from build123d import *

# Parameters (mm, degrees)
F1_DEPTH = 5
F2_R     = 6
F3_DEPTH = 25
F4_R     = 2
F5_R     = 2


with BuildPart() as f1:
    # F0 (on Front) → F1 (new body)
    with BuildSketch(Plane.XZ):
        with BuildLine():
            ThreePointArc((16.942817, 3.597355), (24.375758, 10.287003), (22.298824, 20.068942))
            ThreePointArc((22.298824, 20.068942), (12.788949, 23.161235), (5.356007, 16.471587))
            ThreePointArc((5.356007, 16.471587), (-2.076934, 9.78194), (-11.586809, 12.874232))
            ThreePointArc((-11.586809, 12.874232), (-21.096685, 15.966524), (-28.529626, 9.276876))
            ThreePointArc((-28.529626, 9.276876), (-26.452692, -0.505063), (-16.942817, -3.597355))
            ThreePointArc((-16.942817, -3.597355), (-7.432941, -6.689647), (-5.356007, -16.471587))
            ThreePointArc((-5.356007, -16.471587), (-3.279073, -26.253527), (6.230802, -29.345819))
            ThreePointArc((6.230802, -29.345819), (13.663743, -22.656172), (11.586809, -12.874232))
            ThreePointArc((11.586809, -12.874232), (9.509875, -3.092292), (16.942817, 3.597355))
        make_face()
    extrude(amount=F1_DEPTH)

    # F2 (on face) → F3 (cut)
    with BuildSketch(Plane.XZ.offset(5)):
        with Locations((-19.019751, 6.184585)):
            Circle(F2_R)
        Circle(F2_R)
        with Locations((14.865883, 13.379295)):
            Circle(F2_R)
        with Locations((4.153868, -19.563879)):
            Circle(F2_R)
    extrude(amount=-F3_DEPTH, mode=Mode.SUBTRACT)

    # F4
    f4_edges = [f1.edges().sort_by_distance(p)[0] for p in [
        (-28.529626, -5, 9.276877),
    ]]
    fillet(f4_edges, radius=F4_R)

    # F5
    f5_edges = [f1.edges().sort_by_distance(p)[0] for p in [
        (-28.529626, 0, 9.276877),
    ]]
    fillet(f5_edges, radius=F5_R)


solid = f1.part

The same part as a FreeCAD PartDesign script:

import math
import FreeCAD as App
import Part
import Sketcher
from FreeCAD import Vector


def edges_at(feature, points):
    """Names of the edges that pass closest to the given points."""
    edges = feature.Shape.Edges
    near = lambda p: min(range(len(edges)), key=lambda i: edges[i].distToShape(Part.Vertex(*p))[0])
    return sorted({f"Edge{near(p) + 1}" for p in points})

doc = App.newDocument("Part")
body = doc.addObject("PartDesign::Body", "Body")

sketch1 = body.newObject("Sketcher::SketchObject", "Sketch")
sketch1.AttachmentSupport = (doc.getObject("XZ_Plane"), [""])
sketch1.MapMode = "FlatFace"
sketch1.addGeometry(Part.ArcOfCircle(Part.Circle(Vector(14.865882, 13.379295, 0), Vector(0, 0, 1), 10), math.radians(-78.012783), math.radians(41.987212)), False)
sketch1.addGeometry(Part.ArcOfCircle(Part.Circle(Vector(14.865882, 13.379295, 0), Vector(0, 0, 1), 10), math.radians(41.987209), math.radians(161.987217)), False)
sketch1.addGeometry(Part.ArcOfCircle(Part.Circle(Vector(-4.153868, 19.56388, 0), Vector(0, 0, 1), 10), math.radians(-138.012785), math.radians(-18.012788)), False)
sketch1.addGeometry(Part.ArcOfCircle(Part.Circle(Vector(-19.01975, 6.184584, 0), Vector(0, 0, 1), 10), math.radians(41.987215), math.radians(161.987217)), False)
sketch1.addGeometry(Part.ArcOfCircle(Part.Circle(Vector(-19.019751, 6.184584, 0), Vector(0, 0, 1), 9.999999), math.radians(161.987215), math.radians(281.987215)), False)
sketch1.addGeometry(Part.ArcOfCircle(Part.Circle(Vector(-14.865882, -13.379295, 0), Vector(0, 0, 1), 10), math.radians(-18.012788), math.radians(101.987218)), False)
sketch1.addGeometry(Part.ArcOfCircle(Part.Circle(Vector(4.153868, -19.56388, 0), Vector(0, 0, 1), 10), math.radians(161.987212), math.radians(281.987214)), False)
sketch1.addGeometry(Part.ArcOfCircle(Part.Circle(Vector(4.153868, -19.563879, 0), Vector(0, 0, 1), 10), math.radians(-78.012786), math.radians(41.987215)), False)
sketch1.addGeometry(Part.ArcOfCircle(Part.Circle(Vector(19.01975, -6.184585, 0), Vector(0, 0, 1), 10), math.radians(101.987207), math.radians(221.987216)), False)
sketch1.addConstraint(Sketcher.Constraint("Tangent", 0, 2, 1, 1))
sketch1.addConstraint(Sketcher.Constraint("Tangent", 1, 2, 2, 2))
sketch1.addConstraint(Sketcher.Constraint("Tangent", 2, 1, 3, 1))
sketch1.addConstraint(Sketcher.Constraint("Tangent", 3, 2, 4, 1))
sketch1.addConstraint(Sketcher.Constraint("Tangent", 4, 2, 5, 2))
sketch1.addConstraint(Sketcher.Constraint("Tangent", 5, 1, 6, 1))
sketch1.addConstraint(Sketcher.Constraint("Tangent", 6, 2, 7, 1))
sketch1.addConstraint(Sketcher.Constraint("Tangent", 7, 2, 8, 2))
sketch1.addConstraint(Sketcher.Constraint("Tangent", 8, 1, 0, 1))
sketch1.addConstraint(Sketcher.Constraint("Equal", 0, 1))
sketch1.addConstraint(Sketcher.Constraint("Equal", 1, 2))
sketch1.addConstraint(Sketcher.Constraint("Equal", 2, 3))
sketch1.addConstraint(Sketcher.Constraint("Equal", 3, 4))
sketch1.addConstraint(Sketcher.Constraint("Equal", 4, 5))
sketch1.addConstraint(Sketcher.Constraint("Equal", 5, 6))
sketch1.addConstraint(Sketcher.Constraint("Equal", 6, 7))
sketch1.addConstraint(Sketcher.Constraint("Equal", 7, 8))
sketch1.addConstraint(Sketcher.Constraint("Symmetric", 0, 3, 5, 3, -1, 1))
sketch1.addConstraint(Sketcher.Constraint("Radius", 0, 10.0))
sketch1.addConstraint(Sketcher.Constraint("DistanceX", -1, 1, 6, 2, 6.230802))
sketch1.addConstraint(Sketcher.Constraint("DistanceX", 2, 3, -1, 1, 4.153868))
sketch1.addConstraint(Sketcher.Constraint("DistanceY", -1, 1, 2, 3, 19.56388))
sketch1.addConstraint(Sketcher.Constraint("DistanceX", 3, 3, -1, 1, 19.01975))
sketch1.addConstraint(Sketcher.Constraint("DistanceY", 6, 3, -1, 1, 19.56388))
sketch1.addConstraint(Sketcher.Constraint("DistanceY", -1, 1, 0, 2, 20.068942))
sketch1.addConstraint(Sketcher.Constraint("DistanceY", 4, 3, 3, 2, 3.092292))
pad1 = body.newObject("PartDesign::Pad", "Pad")
pad1.Profile = sketch1
pad1.Length = 5

sketch2 = body.newObject("Sketcher::SketchObject", "Sketch001")
sketch2.AttachmentSupport = (doc.getObject("XZ_Plane"), [""])
sketch2.MapMode = "FlatFace"
sketch2.AttachmentOffset = App.Placement(Vector(0, 0, 5), App.Rotation())
sketch2.addGeometry(Part.Circle(Vector(-19.019751, 6.184585, 0), Vector(0, 0, 1), 6), False)
sketch2.addGeometry(Part.Circle(Vector(0, 0, 0), Vector(0, 0, 1), 6), False)
sketch2.addGeometry(Part.Circle(Vector(14.865883, 13.379295, 0), Vector(0, 0, 1), 6), False)
sketch2.addGeometry(Part.Circle(Vector(4.153868, -19.563879, 0), Vector(0, 0, 1), 6), False)
sketch2.addConstraint(Sketcher.Constraint("Coincident", 1, 3, -1, 1))
sketch2.addConstraint(Sketcher.Constraint("Equal", 0, 1))
sketch2.addConstraint(Sketcher.Constraint("Equal", 1, 2))
sketch2.addConstraint(Sketcher.Constraint("Equal", 2, 3))
sketch2.addConstraint(Sketcher.Constraint("Diameter", 0, 12.0))
sketch2.addConstraint(Sketcher.Constraint("DistanceX", 0, 3, -1, 1, 19.019751))
sketch2.addConstraint(Sketcher.Constraint("DistanceY", 3, 3, -1, 1, 19.563879))
sketch2.addConstraint(Sketcher.Constraint("DistanceY", 0, 3, 2, 3, 7.19471))
sketch2.addConstraint(Sketcher.Constraint("DistanceX", 0, 3, 3, 3, 23.173619))
sketch2.addConstraint(Sketcher.Constraint("DistanceY", -1, 1, 0, 3, 6.184585))
sketch2.addConstraint(Sketcher.Constraint("DistanceX", -1, 1, 2, 3, 14.865883))
pocket1 = body.newObject("PartDesign::Pocket", "Pocket")
pocket1.Profile = sketch2
pocket1.Length = 25
doc.recompute()

fillet = body.newObject("PartDesign::Fillet", "Fillet")
fillet.Base = (pocket1, edges_at(pocket1, [(-21.097, -5, 15.967)]))
fillet.Radius = 2
doc.recompute()

fillet2 = body.newObject("PartDesign::Fillet", "Fillet001")
fillet2.Base = (fillet, edges_at(fillet, [(-21.097, 0, 15.967)]))
fillet2.Radius = 2

doc.recompute()
